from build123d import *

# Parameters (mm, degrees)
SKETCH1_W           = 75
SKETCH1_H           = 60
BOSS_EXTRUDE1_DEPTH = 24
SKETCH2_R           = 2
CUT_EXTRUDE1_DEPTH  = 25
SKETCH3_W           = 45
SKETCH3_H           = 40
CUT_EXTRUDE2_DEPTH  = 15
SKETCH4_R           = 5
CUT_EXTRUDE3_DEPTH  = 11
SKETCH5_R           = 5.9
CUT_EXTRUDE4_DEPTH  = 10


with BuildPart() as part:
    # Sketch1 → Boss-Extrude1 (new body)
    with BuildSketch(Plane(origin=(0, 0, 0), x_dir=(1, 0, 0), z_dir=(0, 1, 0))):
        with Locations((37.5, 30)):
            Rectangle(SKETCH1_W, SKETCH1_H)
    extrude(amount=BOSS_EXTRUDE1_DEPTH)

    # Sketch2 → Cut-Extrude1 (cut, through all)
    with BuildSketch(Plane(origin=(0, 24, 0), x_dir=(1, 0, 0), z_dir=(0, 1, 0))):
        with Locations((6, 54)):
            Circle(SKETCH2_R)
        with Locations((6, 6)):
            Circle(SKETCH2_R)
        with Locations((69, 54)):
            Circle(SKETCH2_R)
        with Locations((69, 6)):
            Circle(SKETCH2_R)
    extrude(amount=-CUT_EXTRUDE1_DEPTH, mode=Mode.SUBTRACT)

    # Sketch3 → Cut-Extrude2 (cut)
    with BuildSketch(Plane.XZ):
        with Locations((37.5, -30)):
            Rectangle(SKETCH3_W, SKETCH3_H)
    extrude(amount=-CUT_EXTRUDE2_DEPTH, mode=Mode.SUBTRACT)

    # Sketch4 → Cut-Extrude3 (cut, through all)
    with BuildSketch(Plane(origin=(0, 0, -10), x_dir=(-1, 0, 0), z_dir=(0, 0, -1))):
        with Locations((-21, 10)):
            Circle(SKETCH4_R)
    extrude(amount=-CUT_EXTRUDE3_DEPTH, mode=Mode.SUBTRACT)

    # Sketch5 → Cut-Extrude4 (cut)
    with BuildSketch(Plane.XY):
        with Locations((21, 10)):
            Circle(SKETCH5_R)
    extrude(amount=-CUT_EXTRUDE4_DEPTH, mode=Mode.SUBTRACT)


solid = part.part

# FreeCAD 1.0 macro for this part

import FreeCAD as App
import Part
import Sketcher


def add_polygon(sketch, points):
    """Adds a closed chain of lines whose ends are joined by coincident constraints."""
    first, n = sketch.GeometryCount, len(points)
    for a, b in zip(points, points[1:] + points[:1]):
        sketch.addGeometry(Part.LineSegment(App.Vector(*a, 0), App.Vector(*b, 0)), False)
    for i in range(n):
        sketch.addConstraint(Sketcher.Constraint("Coincident", first + i, 2, first + (i + 1) % n, 1))

doc = App.newDocument("Part")
body = doc.addObject("PartDesign::Body", "Body")

# Sketch on XZ plane
sketch1 = body.newObject("Sketcher::SketchObject", "Sketch")
sketch1.AttachmentSupport = (doc.getObject("XZ_Plane"), [""])
sketch1.MapMode = "FlatFace"
add_polygon(sketch1, [(0, -60), (0, 0), (75, 0), (75, -60)])  # lines 0-3
sketch1.addConstraint([
    Sketcher.Constraint("Vertical", 0),
    Sketcher.Constraint("Horizontal", 1),
    Sketcher.Constraint("Vertical", 2),
    Sketcher.Constraint("Horizontal", 3),
    Sketcher.Constraint("Coincident", 0, 2, -1, 1),
    Sketcher.Constraint("DistanceX", 1, 1, 1, 2, 75.0),
    Sketcher.Constraint("DistanceY", 0, 1, 0, 2, 60.0),
])
pad1 = body.newObject("PartDesign::Pad", "Pad")
pad1.Profile = sketch1
pad1.Length = 24
pad1.Reversed = True

# Sketch on XZ plane
sketch2 = body.newObject("Sketcher::SketchObject", "Sketch001")
sketch2.AttachmentSupport = (doc.getObject("XZ_Plane"), [""])
sketch2.MapMode = "FlatFace"
sketch2.AttachmentOffset = App.Placement(App.Vector(0, 0, -24), App.Rotation())
sketch2.addGeometry([
    Part.Circle(App.Vector(6, -54, 0), App.Vector(0, 0, 1), 2),
    Part.Circle(App.Vector(6, -6, 0), App.Vector(0, 0, 1), 2),
    Part.Circle(App.Vector(69, -54, 0), App.Vector(0, 0, 1), 2),
    Part.Circle(App.Vector(69, -6, 0), App.Vector(0, 0, 1), 2),
], False)
sketch2.addConstraint([
    Sketcher.Constraint("Equal", 0, 1),
    Sketcher.Constraint("Equal", 1, 2),
    Sketcher.Constraint("Equal", 2, 3),
    Sketcher.Constraint("Horizontal", 0, 3, 2, 3),
    Sketcher.Constraint("Horizontal", 1, 3, 3, 3),
    Sketcher.Constraint("Vertical", 0, 3, 1, 3),
    Sketcher.Constraint("Vertical", 2, 3, 3, 3),
    Sketcher.Constraint("Diameter", 0, 4.0),
    Sketcher.Constraint("DistanceX", -1, 1, 0, 3, 6.0),
    Sketcher.Constraint("DistanceY", 0, 3, -1, 1, 54.0),
    Sketcher.Constraint("DistanceY", 1, 3, -1, 1, 6.0),
    Sketcher.Constraint("DistanceX", -1, 1, 2, 3, 69.0),
])
pocket1 = body.newObject("PartDesign::Pocket", "Pocket")
pocket1.Profile = sketch2
pocket1.Type = "ThroughAll"
pocket1.Reversed = True

# Sketch on XZ plane
sketch3 = body.newObject("Sketcher::SketchObject", "Sketch002")
sketch3.AttachmentSupport = (doc.getObject("XZ_Plane"), [""])
sketch3.MapMode = "FlatFace"
add_polygon(sketch3, [(15, -10), (15, -50), (60, -50), (60, -10)])  # lines 0-3
sketch3.addConstraint([
    Sketcher.Constraint("Vertical", 0),
    Sketcher.Constraint("Horizontal", 1),
    Sketcher.Constraint("Vertical", 2),
    Sketcher.Constraint("Horizontal", 3),
    Sketcher.Constraint("DistanceX", 1, 1, 1, 2, 45.0),
    Sketcher.Constraint("DistanceY", 0, 2, 0, 1, 40.0),
    Sketcher.Constraint("DistanceX", -1, 1, 0, 2, 15.0),
    Sketcher.Constraint("DistanceY", 0, 2, -1, 1, 50.0),
])
pocket2 = body.newObject("PartDesign::Pocket", "Pocket001")
pocket2.Profile = sketch3
pocket2.Length = 15

# Sketch on XY plane
sketch4 = body.newObject("Sketcher::SketchObject", "Sketch003")
sketch4.AttachmentSupport = (doc.getObject("XY_Plane"), [""])
sketch4.MapMode = "FlatFace"
sketch4.AttachmentOffset = App.Placement(App.Vector(0, 0, -10), App.Rotation())
sketch4.addGeometry(Part.Circle(App.Vector(21, 10, 0), App.Vector(0, 0, 1), 5), False)
sketch4.addConstraint([
    Sketcher.Constraint("Diameter", 0, 10.0),
    Sketcher.Constraint("DistanceX", -1, 1, 0, 3, 21.0),
    Sketcher.Constraint("DistanceY", -1, 1, 0, 3, 10.0),
])
pocket3 = body.newObject("PartDesign::Pocket", "Pocket002")
pocket3.Profile = sketch4
pocket3.Type = "ThroughAll"
pocket3.Reversed = True

# Sketch on XY plane
sketch5 = body.newObject("Sketcher::SketchObject", "Sketch004")
sketch5.AttachmentSupport = (doc.getObject("XY_Plane"), [""])
sketch5.MapMode = "FlatFace"
sketch5.addGeometry(Part.Circle(App.Vector(21, 10, 0), App.Vector(0, 0, 1), 6), False)
sketch5.addConstraint([
    Sketcher.Constraint("Diameter", 0, 11.8),
    Sketcher.Constraint("DistanceX", -1, 1, 0, 3, 21.0),
    Sketcher.Constraint("DistanceY", -1, 1, 0, 3, 10.0),
])
pocket4 = body.newObject("PartDesign::Pocket", "Pocket003")
pocket4.Profile = sketch5
pocket4.Length = 10

doc.recompute()
